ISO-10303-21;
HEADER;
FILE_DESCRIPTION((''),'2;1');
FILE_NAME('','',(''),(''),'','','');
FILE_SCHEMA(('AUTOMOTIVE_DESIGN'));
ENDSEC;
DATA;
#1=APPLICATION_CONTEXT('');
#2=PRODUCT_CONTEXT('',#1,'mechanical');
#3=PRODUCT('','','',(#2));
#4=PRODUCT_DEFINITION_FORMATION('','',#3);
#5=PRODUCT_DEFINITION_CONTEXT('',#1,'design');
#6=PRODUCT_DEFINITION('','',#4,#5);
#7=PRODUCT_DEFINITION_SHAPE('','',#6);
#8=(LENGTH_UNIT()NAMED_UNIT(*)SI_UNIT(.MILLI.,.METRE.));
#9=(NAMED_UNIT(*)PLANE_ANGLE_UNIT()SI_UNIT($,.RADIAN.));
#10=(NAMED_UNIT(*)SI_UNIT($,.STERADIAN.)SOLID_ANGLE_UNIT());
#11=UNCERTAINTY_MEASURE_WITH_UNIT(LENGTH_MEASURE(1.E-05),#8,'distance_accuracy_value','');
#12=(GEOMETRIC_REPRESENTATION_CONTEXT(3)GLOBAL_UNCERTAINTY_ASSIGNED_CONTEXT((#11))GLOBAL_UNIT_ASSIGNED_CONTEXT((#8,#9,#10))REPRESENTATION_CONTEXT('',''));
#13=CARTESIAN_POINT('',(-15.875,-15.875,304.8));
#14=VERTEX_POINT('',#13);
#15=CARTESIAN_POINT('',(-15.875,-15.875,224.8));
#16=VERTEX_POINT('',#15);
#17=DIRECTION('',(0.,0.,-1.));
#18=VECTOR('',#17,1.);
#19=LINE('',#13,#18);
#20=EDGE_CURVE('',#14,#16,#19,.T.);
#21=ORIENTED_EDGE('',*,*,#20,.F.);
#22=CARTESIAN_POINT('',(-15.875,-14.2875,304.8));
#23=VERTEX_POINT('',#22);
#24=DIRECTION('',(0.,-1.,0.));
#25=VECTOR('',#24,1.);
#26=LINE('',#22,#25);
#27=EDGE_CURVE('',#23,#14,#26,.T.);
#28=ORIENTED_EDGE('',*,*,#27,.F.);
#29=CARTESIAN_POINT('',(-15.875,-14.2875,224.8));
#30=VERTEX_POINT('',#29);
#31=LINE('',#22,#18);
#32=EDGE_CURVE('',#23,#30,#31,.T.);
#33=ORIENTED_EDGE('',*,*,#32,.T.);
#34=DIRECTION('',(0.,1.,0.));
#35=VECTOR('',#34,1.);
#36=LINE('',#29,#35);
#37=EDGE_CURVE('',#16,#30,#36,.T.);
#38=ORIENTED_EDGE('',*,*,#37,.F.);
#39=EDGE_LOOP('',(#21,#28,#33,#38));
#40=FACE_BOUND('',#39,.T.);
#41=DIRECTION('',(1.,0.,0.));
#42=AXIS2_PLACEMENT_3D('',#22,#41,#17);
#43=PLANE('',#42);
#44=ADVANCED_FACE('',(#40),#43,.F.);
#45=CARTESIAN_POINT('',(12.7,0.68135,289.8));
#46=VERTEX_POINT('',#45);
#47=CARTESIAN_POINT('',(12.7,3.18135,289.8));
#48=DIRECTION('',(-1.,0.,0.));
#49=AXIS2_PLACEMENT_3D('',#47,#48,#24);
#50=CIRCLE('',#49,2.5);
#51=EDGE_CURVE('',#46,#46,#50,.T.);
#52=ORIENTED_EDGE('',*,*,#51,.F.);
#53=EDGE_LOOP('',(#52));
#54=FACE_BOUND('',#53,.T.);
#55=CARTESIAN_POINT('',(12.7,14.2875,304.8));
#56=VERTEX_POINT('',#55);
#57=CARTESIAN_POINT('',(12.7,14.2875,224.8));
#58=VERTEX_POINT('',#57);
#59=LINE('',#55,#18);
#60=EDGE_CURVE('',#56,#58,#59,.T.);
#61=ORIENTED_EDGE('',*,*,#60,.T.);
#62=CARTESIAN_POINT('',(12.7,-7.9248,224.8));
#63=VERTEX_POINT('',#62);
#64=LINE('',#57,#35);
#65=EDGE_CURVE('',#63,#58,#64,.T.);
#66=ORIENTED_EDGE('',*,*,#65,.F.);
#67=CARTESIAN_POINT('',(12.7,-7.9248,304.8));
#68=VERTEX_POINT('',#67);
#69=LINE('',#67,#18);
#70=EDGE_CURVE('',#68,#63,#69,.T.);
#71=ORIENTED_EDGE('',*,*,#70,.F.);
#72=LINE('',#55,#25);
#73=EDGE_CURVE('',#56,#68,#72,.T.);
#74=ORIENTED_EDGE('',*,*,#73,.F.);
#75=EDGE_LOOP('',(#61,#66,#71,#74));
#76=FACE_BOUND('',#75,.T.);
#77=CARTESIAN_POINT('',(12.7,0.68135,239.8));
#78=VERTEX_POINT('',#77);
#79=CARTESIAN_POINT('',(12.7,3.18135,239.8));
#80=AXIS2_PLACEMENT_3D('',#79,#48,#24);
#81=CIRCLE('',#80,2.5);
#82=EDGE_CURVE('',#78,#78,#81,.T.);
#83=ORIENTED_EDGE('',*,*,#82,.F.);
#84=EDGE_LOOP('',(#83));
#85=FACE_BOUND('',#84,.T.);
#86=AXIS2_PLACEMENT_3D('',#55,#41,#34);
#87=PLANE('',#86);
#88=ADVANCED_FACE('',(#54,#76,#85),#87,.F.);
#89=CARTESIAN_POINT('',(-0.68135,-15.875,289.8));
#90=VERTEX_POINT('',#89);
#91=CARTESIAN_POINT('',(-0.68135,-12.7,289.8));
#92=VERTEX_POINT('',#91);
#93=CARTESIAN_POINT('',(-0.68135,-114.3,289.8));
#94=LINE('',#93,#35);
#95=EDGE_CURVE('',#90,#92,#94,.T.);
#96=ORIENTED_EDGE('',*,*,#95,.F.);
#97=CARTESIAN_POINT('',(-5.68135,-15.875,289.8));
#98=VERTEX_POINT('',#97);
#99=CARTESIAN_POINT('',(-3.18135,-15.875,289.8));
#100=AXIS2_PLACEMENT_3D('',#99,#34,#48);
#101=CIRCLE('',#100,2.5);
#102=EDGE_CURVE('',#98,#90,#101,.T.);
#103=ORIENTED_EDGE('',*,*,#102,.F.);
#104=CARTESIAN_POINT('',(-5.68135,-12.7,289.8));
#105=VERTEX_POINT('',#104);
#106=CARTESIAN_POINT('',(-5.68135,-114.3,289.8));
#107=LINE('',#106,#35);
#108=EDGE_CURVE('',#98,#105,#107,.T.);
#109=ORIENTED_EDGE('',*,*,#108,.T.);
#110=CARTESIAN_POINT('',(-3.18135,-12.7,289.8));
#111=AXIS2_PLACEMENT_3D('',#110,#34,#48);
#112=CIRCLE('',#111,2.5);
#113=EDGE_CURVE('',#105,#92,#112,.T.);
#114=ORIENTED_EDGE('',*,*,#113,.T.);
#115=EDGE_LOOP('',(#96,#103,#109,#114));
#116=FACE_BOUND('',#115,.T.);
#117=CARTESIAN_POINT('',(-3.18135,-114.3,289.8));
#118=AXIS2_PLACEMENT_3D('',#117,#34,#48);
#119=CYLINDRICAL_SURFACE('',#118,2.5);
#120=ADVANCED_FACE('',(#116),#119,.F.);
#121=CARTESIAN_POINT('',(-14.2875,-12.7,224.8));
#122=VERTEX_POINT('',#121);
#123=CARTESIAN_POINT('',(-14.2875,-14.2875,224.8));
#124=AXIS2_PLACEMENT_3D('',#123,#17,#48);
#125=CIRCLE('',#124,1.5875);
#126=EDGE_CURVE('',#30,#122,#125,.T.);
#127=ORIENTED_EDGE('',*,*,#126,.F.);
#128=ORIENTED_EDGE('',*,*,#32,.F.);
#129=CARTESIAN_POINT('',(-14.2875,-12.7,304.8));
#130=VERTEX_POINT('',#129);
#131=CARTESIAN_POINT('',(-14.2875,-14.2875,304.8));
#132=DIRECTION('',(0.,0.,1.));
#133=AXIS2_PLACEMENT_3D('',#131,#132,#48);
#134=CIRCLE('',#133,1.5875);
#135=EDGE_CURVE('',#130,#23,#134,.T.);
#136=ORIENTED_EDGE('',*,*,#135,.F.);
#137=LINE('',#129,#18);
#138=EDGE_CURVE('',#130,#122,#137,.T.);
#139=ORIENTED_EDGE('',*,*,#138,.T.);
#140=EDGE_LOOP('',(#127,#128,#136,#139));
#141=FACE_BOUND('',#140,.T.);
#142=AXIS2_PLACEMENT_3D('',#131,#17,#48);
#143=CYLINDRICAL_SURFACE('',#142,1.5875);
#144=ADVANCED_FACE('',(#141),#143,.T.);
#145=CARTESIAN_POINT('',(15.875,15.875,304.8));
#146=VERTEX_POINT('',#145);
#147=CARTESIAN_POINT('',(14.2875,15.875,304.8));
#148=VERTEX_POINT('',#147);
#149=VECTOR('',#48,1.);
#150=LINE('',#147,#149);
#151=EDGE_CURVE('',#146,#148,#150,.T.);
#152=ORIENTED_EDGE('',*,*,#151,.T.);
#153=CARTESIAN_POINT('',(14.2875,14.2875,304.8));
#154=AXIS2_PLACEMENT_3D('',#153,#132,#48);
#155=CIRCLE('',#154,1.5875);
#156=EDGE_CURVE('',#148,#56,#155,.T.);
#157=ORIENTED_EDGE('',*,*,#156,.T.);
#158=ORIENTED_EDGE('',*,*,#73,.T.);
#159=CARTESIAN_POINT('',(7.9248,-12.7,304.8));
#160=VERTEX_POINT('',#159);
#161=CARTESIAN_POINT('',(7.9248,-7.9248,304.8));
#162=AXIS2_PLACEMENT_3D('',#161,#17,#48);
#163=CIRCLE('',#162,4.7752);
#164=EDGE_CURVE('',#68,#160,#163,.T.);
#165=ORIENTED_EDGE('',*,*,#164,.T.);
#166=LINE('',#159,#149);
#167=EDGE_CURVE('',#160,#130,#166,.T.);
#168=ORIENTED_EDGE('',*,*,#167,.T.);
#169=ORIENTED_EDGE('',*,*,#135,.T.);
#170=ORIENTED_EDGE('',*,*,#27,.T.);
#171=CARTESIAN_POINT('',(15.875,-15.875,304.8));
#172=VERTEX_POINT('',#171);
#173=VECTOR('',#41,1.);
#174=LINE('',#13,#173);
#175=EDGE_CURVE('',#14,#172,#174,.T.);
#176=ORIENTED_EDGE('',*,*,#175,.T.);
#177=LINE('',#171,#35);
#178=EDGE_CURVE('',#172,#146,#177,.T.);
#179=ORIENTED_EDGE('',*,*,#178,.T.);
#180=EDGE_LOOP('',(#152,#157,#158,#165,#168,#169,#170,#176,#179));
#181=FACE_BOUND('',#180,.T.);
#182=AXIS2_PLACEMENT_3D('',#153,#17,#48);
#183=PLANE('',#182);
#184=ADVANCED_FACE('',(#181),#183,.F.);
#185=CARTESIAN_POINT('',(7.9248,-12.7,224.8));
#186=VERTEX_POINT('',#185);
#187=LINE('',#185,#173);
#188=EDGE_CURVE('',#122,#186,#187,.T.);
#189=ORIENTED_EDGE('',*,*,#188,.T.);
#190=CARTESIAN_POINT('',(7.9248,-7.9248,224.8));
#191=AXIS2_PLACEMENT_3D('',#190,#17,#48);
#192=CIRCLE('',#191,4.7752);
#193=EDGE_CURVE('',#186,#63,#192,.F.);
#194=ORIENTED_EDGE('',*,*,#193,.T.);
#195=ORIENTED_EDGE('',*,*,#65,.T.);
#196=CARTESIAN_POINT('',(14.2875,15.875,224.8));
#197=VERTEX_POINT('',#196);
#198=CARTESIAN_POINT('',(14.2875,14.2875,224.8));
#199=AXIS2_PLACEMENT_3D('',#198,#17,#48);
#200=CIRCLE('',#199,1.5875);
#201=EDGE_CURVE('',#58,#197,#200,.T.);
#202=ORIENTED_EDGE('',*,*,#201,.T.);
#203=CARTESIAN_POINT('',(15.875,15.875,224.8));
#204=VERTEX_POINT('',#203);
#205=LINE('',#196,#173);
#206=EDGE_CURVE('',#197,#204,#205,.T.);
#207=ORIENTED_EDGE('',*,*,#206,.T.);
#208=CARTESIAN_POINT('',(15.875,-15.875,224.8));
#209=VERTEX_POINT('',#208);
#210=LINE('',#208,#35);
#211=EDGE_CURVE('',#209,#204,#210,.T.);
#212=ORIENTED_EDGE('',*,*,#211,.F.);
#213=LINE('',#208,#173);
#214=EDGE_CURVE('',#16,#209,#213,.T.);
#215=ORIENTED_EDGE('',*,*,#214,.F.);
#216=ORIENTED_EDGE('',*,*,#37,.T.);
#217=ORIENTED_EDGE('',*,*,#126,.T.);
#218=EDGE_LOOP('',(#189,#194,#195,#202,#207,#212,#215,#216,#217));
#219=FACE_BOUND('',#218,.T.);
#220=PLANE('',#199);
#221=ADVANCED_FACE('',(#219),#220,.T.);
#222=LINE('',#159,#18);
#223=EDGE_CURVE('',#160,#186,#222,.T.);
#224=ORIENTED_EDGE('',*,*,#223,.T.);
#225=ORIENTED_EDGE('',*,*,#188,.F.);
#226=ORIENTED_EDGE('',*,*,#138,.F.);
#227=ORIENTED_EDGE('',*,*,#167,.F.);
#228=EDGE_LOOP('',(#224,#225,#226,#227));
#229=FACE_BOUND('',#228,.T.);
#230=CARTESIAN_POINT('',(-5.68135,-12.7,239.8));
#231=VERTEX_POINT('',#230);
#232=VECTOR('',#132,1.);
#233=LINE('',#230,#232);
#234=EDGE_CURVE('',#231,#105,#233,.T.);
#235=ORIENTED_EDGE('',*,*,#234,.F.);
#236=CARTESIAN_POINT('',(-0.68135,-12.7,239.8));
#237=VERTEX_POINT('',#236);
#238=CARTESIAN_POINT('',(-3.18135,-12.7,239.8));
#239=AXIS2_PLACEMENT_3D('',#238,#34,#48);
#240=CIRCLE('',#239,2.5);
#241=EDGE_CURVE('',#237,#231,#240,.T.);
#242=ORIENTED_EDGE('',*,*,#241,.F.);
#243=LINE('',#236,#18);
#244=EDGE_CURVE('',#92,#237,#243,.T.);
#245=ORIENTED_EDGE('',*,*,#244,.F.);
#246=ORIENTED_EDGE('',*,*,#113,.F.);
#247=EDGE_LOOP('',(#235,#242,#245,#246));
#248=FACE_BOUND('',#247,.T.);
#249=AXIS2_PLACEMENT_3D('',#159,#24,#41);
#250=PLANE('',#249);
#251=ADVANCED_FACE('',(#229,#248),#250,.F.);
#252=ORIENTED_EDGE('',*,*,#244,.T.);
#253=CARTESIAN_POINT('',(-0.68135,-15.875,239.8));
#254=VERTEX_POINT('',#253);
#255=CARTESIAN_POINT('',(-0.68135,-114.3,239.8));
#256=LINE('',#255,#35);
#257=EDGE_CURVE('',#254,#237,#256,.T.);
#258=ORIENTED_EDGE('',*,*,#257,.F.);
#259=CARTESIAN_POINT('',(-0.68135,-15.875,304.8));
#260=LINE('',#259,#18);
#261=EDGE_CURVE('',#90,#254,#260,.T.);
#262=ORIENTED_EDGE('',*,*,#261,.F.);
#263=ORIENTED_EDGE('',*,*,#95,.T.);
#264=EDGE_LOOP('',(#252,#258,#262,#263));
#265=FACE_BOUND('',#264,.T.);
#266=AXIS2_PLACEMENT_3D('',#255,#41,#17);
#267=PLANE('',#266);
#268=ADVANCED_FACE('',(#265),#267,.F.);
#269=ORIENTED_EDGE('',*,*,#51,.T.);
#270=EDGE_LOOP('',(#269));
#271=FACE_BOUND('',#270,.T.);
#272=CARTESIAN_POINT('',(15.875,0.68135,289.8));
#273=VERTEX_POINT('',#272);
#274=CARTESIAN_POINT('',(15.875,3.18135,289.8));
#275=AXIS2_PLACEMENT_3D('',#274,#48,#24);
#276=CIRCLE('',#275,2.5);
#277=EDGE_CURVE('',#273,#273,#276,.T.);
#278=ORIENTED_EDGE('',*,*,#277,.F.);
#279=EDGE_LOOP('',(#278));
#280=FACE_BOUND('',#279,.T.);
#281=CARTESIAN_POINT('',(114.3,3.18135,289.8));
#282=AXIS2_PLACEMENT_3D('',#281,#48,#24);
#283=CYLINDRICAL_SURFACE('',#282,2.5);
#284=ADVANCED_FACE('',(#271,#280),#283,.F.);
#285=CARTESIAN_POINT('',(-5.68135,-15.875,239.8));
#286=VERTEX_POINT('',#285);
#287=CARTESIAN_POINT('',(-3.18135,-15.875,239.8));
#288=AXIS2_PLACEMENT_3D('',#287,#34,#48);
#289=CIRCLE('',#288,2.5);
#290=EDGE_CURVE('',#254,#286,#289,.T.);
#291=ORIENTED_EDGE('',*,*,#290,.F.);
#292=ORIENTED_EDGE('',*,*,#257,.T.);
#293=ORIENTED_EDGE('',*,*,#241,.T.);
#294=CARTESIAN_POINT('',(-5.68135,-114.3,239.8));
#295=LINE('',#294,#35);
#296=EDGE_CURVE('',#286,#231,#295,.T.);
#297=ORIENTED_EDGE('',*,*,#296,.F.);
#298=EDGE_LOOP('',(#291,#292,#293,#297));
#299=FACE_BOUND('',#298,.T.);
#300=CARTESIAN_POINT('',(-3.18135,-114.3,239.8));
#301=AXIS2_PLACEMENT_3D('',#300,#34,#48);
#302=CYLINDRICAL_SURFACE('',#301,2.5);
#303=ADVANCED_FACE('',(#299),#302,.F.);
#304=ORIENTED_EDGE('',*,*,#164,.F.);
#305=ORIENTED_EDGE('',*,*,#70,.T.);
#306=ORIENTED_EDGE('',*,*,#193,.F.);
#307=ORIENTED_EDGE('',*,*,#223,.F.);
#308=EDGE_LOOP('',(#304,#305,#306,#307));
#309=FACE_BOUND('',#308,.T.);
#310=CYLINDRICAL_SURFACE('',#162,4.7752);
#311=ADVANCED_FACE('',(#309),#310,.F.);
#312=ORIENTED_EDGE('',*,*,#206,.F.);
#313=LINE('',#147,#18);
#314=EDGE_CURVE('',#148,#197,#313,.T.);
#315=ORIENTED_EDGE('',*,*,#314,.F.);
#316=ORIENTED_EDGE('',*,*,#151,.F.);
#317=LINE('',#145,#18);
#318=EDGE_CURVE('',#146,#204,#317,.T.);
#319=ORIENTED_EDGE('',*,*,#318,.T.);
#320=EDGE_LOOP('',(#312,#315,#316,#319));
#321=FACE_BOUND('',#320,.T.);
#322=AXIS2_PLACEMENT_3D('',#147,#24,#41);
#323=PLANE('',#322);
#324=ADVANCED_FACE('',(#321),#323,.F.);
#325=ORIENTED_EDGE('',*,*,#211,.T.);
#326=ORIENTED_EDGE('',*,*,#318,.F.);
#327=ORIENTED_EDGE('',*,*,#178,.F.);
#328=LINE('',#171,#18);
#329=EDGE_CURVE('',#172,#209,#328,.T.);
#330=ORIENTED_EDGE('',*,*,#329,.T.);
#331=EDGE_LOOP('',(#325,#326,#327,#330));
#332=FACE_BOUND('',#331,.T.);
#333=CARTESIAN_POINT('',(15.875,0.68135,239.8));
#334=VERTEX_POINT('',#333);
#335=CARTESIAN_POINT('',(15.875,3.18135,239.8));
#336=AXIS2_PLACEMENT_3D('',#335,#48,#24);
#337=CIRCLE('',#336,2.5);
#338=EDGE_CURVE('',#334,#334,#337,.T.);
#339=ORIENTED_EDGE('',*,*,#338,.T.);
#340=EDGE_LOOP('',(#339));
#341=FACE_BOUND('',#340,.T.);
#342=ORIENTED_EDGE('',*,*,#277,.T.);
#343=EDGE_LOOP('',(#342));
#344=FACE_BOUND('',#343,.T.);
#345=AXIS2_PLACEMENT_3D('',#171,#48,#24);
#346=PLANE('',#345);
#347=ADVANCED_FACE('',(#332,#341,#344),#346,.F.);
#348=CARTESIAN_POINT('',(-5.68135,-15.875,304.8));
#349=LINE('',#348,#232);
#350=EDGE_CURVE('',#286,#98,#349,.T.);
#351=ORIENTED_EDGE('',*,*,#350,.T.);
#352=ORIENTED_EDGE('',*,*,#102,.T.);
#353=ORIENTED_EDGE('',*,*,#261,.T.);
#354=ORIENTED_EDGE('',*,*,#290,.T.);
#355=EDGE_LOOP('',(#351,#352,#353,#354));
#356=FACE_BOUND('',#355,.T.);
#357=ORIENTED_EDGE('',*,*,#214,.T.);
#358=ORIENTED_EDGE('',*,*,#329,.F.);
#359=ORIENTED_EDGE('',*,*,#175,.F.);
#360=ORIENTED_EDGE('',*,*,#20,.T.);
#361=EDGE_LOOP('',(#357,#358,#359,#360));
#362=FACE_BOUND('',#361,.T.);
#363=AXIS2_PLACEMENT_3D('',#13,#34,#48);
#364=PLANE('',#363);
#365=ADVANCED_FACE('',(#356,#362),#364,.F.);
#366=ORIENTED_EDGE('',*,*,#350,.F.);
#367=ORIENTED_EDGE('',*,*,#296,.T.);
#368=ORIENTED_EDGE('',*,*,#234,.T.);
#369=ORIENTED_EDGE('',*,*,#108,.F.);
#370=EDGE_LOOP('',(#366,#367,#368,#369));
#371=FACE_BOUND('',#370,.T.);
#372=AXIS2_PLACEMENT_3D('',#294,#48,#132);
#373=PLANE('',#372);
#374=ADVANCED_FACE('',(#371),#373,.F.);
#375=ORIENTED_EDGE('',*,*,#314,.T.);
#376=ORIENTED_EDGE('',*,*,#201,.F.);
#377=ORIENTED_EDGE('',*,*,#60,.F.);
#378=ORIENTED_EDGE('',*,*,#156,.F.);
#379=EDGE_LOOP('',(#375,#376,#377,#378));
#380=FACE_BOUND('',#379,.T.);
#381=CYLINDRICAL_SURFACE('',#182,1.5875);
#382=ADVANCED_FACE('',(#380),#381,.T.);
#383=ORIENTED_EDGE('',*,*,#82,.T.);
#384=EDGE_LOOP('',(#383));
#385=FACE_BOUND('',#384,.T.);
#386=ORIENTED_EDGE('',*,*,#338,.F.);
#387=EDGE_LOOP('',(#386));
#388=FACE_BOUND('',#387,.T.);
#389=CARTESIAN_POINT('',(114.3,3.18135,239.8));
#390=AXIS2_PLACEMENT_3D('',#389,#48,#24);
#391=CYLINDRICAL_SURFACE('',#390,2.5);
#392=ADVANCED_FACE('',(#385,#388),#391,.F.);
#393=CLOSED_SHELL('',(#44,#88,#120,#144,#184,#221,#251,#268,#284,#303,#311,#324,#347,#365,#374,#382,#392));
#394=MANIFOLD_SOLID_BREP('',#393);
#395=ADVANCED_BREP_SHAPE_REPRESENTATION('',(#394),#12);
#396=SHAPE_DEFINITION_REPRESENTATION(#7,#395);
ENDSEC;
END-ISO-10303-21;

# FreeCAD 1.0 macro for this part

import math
import FreeCAD as App
import Part
import Sketcher
from FreeCAD import Vector
Q = App.Units.Quantity

doc = App.newDocument("Part")
params = doc.addObject("Spreadsheet::Sheet", "Params")
for row, (alias, value) in enumerate([
    ("sketch1_radius", "0.0625 in"),
    ("sketch1_radius2", "0.188 in"),
    ("sketch1_width", "1.25 in"),
    ("pad1_length", "24 in"),
    ("pocket1_length", "529.6 mm"),
    ("pocket2_length", "4 in"),
    ("pocket3_length", "4 in"),
], start=1):
    params.set(f"A{row}", alias)
    params.set(f"B{row}", "=" + value)
    params.setAlias(f"B{row}", alias)

body = doc.addObject("PartDesign::Body", "Body")

# Sketch on XY plane
sketch1 = doc.addObject("Sketcher::SketchObject", "Sketch")
body.addObject(sketch1)
sketch1.AttachmentSupport = (doc.XY_Plane, [""])
sketch1.MapMode = "FlatFace"
sketch1.addGeometry(Part.LineSegment(Vector(-15.875, -15.875, 0), Vector(15.875, -15.875, 0)), False)
sketch1.addGeometry(Part.LineSegment(Vector(15.875, -15.875, 0), Vector(15.875, 15.875, 0)), False)
sketch1.addGeometry(Part.LineSegment(Vector(15.875, 15.875, 0), Vector(14.2875, 15.875, 0)), False)
sketch1.addGeometry(Part.ArcOfCircle(Part.Circle(Vector(14.2875, 14.2875, 0), Vector(0, 0, 1), 1.5875), math.radians(90), math.radians(180)), False)
sketch1.addGeometry(Part.LineSegment(Vector(12.7, 14.2875, 0), Vector(12.7, -7.9248, 0)), False)
sketch1.addGeometry(Part.ArcOfCircle(Part.Circle(Vector(7.9248, -7.9248, 0), Vector(0, 0, 1), 4.7752), math.radians(-90), math.radians(0)), False)
sketch1.addGeometry(Part.LineSegment(Vector(7.9248, -12.7, 0), Vector(-14.2875, -12.7, 0)), False)
sketch1.addGeometry(Part.ArcOfCircle(Part.Circle(Vector(-14.2875, -14.2875, 0), Vector(0, 0, 1), 1.5875), math.radians(90), math.radians(180)), False)
sketch1.addGeometry(Part.LineSegment(Vector(-15.875, -14.2875, 0), Vector(-15.875, -15.875, 0)), False)
sketch1.addConstraint(Sketcher.Constraint("Coincident", 0, 2, 1, 1))
sketch1.addConstraint(Sketcher.Constraint("Coincident", 1, 2, 2, 1))
sketch1.addConstraint(Sketcher.Constraint("Tangent", 2, 2, 3, 1))
sketch1.addConstraint(Sketcher.Constraint("Tangent", 3, 2, 4, 1))
sketch1.addConstraint(Sketcher.Constraint("Tangent", 4, 2, 5, 2))
sketch1.addConstraint(Sketcher.Constraint("Tangent", 5, 1, 6, 1))
sketch1.addConstraint(Sketcher.Constraint("Tangent", 6, 2, 7, 1))
sketch1.addConstraint(Sketcher.Constraint("Tangent", 7, 2, 8, 1))
sketch1.addConstraint(Sketcher.Constraint("Coincident", 8, 2, 0, 1))
sketch1.addConstraint(Sketcher.Constraint("Horizontal", 0))
sketch1.addConstraint(Sketcher.Constraint("Vertical", 1))
sketch1.addConstraint(Sketcher.Constraint("Horizontal", 2))
sketch1.addConstraint(Sketcher.Constraint("Vertical", 4))
sketch1.addConstraint(Sketcher.Constraint("Horizontal", 6))
sketch1.addConstraint(Sketcher.Constraint("Vertical", 8))
sketch1.addConstraint(Sketcher.Constraint("Equal", 3, 7))
sketch1.addConstraint(Sketcher.Constraint("Symmetric", 3, 3, 7, 3, -1, 1))
sketch1.addConstraint(Sketcher.Constraint("Symmetric", 1, 2, 8, 2, -1, 1))
sketch1.addConstraint(Sketcher.Constraint("Equal", 0, 1))
sketch1.addConstraint(Sketcher.Constraint("Radius", 3, Q("0.0625 in")))
sketch1.addConstraint(Sketcher.Constraint("Radius", 5, Q("0.188 in")))
sketch1.addConstraint(Sketcher.Constraint("DistanceX", 0, 1, 0, 2, Q("1.25 in")))
sketch1.setExpression("Constraints[19]", "Params.sketch1_radius")
sketch1.setExpression("Constraints[20]", "Params.sketch1_radius2")
sketch1.setExpression("Constraints[21]", "Params.sketch1_width")
pad1 = doc.addObject("PartDesign::Pad", "Pad")
body.addObject(pad1)
pad1.Profile = sketch1
pad1.setExpression("Length", "Params.pad1_length")
pad1.Midplane = True

# Sketch on XY plane
sketch2 = doc.addObject("Sketcher::SketchObject", "Sketch001")
body.addObject(sketch2)
sketch2.AttachmentSupport = (doc.XY_Plane, [""])
sketch2.MapMode = "FlatFace"
sketch2.AttachmentOffset = App.Placement(Vector(0, 0, -12 * 25.4), App.Rotation())
sketch2.addGeometry(Part.LineSegment(Vector(15.875, 17.78294, 0), Vector(15.875, -15.875, 0)), False)
sketch2.addGeometry(Part.LineSegment(Vector(15.875, -15.875, 0), Vector(-18.539455, -15.875, 0)), False)
sketch2.addGeometry(Part.LineSegment(Vector(-18.539455, -15.875, 0), Vector(-18.539455, 17.78294, 0)), False)
sketch2.addGeometry(Part.LineSegment(Vector(-18.539455, 17.78294, 0), Vector(15.875, 17.78294, 0)), False)
sketch2.addConstraint(Sketcher.Constraint("Coincident", 0, 2, 1, 1))
sketch2.addConstraint(Sketcher.Constraint("Coincident", 1, 2, 2, 1))
sketch2.addConstraint(Sketcher.Constraint("Coincident", 2, 2, 3, 1))
sketch2.addConstraint(Sketcher.Constraint("Coincident", 3, 2, 0, 1))
sketch2.addConstraint(Sketcher.Constraint("Vertical", 0))
sketch2.addConstraint(Sketcher.Constraint("Horizontal", 1))
sketch2.addConstraint(Sketcher.Constraint("Vertical", 2))
sketch2.addConstraint(Sketcher.Constraint("Horizontal", 3))
sketch2.addConstraint(Sketcher.Constraint("DistanceX", 1, 2, 1, 1, Q("1.3548998 in")))
sketch2.addConstraint(Sketcher.Constraint("DistanceX", -1, 1, 0, 2, Q("0.625 in")))
sketch2.addConstraint(Sketcher.Constraint("DistanceY", 0, 2, -1, 1, Q("0.625 in")))
sketch2.addConstraint(Sketcher.Constraint("DistanceY", 0, 2, 0, 1, Q("33.65794 mm")))
pocket1 = doc.addObject("PartDesign::Pocket", "Pocket")
body.addObject(pocket1)
pocket1.Profile = sketch2
pocket1.setExpression("Length", "Params.pocket1_length")
pocket1.Reversed = True

# Sketch on YZ plane
sketch3 = doc.addObject("Sketcher::SketchObject", "Sketch002")
body.addObject(sketch3)
sketch3.AttachmentSupport = (doc.YZ_Plane, [""])
sketch3.MapMode = "FlatFace"
sketch3.AttachmentOffset = App.Placement(Vector(0, 0, 0.5 * 25.4), App.Rotation())
sketch3.addGeometry(Part.Circle(Vector(3.18135, 289.8, 0), Vector(0, 0, 1), 2.5), False)
sketch3.addGeometry(Part.Circle(Vector(3.18135, 239.8, 0), Vector(0, 0, 1), 2.5), False)
sketch3.addConstraint(Sketcher.Constraint("Equal", 0, 1))
sketch3.addConstraint(Sketcher.Constraint("Vertical", 0, 3, 1, 3))
sketch3.addConstraint(Sketcher.Constraint("Diameter", 0, Q("5 mm")))
sketch3.addConstraint(Sketcher.Constraint("DistanceY", -1, 1, 0, 3, Q("289.8 mm")))
sketch3.addConstraint(Sketcher.Constraint("DistanceY", -1, 1, 1, 3, Q("239.8 mm")))
sketch3.addConstraint(Sketcher.Constraint("DistanceX", -1, 1, 0, 3, Q("3.18135 mm")))
pocket2 = doc.addObject("PartDesign::Pocket", "Pocket001")
body.addObject(pocket2)
pocket2.Profile = sketch3
pocket2.setExpression("Length", "Params.pocket2_length")
pocket2.Reversed = True

# Sketch on XZ plane
sketch4 = doc.addObject("Sketcher::SketchObject", "Sketch003")
body.addObject(sketch4)
sketch4.AttachmentSupport = (doc.XZ_Plane, [""])
sketch4.MapMode = "FlatFace"
sketch4.AttachmentOffset = App.Placement(Vector(0, 0, 0.5 * 25.4), App.Rotation())
sketch4.addGeometry(Part.LineSegment(Vector(-0.68135, 289.8, 0), Vector(-0.68135, 239.8, 0)), False)
sketch4.addGeometry(Part.ArcOfCircle(Part.Circle(Vector(-3.18135, 239.8, 0), Vector(0, 0, 1), 2.5), math.radians(180), math.radians(360)), False)
sketch4.addGeometry(Part.LineSegment(Vector(-5.68135, 239.8, 0), Vector(-5.68135, 289.8, 0)), False)
sketch4.addGeometry(Part.ArcOfCircle(Part.Circle(Vector(-3.18135, 289.8, 0), Vector(0, 0, 1), 2.5), math.radians(0), math.radians(180)), False)
sketch4.addConstraint(Sketcher.Constraint("Tangent", 0, 2, 1, 2))
sketch4.addConstraint(Sketcher.Constraint("Tangent", 1, 1, 2, 1))
sketch4.addConstraint(Sketcher.Constraint("Tangent", 2, 2, 3, 2))
sketch4.addConstraint(Sketcher.Constraint("Tangent", 3, 1, 0, 1))
sketch4.addConstraint(Sketcher.Constraint("Vertical", 0))
sketch4.addConstraint(Sketcher.Constraint("Vertical", 2))
sketch4.addConstraint(Sketcher.Constraint("Radius", 1, Q("2.5 mm")))
sketch4.addConstraint(Sketcher.Constraint("DistanceY", 0, 2, 0, 1, Q("50 mm")))
sketch4.addConstraint(Sketcher.Constraint("DistanceY", -1, 1, 1, 3, Q("239.8 mm")))
sketch4.addConstraint(Sketcher.Constraint("DistanceX", 1, 3, -1, 1, Q("3.18135 mm")))
pocket3 = doc.addObject("PartDesign::Pocket", "Pocket002")
body.addObject(pocket3)
pocket3.Profile = sketch4
pocket3.setExpression("Length", "Params.pocket3_length")
pocket3.Reversed = True

doc.recompute()
